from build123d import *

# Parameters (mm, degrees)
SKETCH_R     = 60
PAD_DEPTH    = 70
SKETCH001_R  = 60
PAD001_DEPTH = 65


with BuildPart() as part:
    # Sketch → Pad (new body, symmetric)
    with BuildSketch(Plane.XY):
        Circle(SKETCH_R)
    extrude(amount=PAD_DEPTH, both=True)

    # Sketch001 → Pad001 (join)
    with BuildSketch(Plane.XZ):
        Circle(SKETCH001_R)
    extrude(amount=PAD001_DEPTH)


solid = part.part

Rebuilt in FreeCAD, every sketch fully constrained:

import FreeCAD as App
import Part
import Sketcher

doc = App.newDocument("Part")
body = doc.addObject("PartDesign::Body", "Body")

# Sketch on XY plane
sketch1 = body.newObject("Sketcher::SketchObject", "Sketch")
sketch1.AttachmentSupport = (doc.getObject("XY_Plane"), [""])
sketch1.MapMode = "FlatFace"
sketch1.addGeometry(Part.Circle(App.Vector(0, 0, 0), App.Vector(0, 0, 1), 60), False)
sketch1.addConstraint(Sketcher.Constraint("Coincident", 0, 3, -1, 1))
sketch1.addConstraint(Sketcher.Constraint("Diameter", 0, 120.0))
pad1 = body.newObject("PartDesign::Pad", "Pad")
pad1.Profile = sketch1
pad1.Length = 140
pad1.Midplane = True

# Sketch on XZ plane
sketch2 = body.newObject("Sketcher::SketchObject", "Sketch001")
sketch2.AttachmentSupport = (doc.getObject("XZ_Plane"), [""])
sketch2.MapMode = "FlatFace"
sketch2.addGeometry(Part.Circle(App.Vector(0, 0, 0), App.Vector(0, 0, 1), 60), False)
sketch2.addConstraint(Sketcher.Constraint("Coincident", 0, 3, -1, 1))
sketch2.addConstraint(Sketcher.Constraint("Diameter", 0, 120.0))
pad2 = body.newObject("PartDesign::Pad", "Pad001")
pad2.Profile = sketch2
pad2.Length = 65

doc.recompute()
